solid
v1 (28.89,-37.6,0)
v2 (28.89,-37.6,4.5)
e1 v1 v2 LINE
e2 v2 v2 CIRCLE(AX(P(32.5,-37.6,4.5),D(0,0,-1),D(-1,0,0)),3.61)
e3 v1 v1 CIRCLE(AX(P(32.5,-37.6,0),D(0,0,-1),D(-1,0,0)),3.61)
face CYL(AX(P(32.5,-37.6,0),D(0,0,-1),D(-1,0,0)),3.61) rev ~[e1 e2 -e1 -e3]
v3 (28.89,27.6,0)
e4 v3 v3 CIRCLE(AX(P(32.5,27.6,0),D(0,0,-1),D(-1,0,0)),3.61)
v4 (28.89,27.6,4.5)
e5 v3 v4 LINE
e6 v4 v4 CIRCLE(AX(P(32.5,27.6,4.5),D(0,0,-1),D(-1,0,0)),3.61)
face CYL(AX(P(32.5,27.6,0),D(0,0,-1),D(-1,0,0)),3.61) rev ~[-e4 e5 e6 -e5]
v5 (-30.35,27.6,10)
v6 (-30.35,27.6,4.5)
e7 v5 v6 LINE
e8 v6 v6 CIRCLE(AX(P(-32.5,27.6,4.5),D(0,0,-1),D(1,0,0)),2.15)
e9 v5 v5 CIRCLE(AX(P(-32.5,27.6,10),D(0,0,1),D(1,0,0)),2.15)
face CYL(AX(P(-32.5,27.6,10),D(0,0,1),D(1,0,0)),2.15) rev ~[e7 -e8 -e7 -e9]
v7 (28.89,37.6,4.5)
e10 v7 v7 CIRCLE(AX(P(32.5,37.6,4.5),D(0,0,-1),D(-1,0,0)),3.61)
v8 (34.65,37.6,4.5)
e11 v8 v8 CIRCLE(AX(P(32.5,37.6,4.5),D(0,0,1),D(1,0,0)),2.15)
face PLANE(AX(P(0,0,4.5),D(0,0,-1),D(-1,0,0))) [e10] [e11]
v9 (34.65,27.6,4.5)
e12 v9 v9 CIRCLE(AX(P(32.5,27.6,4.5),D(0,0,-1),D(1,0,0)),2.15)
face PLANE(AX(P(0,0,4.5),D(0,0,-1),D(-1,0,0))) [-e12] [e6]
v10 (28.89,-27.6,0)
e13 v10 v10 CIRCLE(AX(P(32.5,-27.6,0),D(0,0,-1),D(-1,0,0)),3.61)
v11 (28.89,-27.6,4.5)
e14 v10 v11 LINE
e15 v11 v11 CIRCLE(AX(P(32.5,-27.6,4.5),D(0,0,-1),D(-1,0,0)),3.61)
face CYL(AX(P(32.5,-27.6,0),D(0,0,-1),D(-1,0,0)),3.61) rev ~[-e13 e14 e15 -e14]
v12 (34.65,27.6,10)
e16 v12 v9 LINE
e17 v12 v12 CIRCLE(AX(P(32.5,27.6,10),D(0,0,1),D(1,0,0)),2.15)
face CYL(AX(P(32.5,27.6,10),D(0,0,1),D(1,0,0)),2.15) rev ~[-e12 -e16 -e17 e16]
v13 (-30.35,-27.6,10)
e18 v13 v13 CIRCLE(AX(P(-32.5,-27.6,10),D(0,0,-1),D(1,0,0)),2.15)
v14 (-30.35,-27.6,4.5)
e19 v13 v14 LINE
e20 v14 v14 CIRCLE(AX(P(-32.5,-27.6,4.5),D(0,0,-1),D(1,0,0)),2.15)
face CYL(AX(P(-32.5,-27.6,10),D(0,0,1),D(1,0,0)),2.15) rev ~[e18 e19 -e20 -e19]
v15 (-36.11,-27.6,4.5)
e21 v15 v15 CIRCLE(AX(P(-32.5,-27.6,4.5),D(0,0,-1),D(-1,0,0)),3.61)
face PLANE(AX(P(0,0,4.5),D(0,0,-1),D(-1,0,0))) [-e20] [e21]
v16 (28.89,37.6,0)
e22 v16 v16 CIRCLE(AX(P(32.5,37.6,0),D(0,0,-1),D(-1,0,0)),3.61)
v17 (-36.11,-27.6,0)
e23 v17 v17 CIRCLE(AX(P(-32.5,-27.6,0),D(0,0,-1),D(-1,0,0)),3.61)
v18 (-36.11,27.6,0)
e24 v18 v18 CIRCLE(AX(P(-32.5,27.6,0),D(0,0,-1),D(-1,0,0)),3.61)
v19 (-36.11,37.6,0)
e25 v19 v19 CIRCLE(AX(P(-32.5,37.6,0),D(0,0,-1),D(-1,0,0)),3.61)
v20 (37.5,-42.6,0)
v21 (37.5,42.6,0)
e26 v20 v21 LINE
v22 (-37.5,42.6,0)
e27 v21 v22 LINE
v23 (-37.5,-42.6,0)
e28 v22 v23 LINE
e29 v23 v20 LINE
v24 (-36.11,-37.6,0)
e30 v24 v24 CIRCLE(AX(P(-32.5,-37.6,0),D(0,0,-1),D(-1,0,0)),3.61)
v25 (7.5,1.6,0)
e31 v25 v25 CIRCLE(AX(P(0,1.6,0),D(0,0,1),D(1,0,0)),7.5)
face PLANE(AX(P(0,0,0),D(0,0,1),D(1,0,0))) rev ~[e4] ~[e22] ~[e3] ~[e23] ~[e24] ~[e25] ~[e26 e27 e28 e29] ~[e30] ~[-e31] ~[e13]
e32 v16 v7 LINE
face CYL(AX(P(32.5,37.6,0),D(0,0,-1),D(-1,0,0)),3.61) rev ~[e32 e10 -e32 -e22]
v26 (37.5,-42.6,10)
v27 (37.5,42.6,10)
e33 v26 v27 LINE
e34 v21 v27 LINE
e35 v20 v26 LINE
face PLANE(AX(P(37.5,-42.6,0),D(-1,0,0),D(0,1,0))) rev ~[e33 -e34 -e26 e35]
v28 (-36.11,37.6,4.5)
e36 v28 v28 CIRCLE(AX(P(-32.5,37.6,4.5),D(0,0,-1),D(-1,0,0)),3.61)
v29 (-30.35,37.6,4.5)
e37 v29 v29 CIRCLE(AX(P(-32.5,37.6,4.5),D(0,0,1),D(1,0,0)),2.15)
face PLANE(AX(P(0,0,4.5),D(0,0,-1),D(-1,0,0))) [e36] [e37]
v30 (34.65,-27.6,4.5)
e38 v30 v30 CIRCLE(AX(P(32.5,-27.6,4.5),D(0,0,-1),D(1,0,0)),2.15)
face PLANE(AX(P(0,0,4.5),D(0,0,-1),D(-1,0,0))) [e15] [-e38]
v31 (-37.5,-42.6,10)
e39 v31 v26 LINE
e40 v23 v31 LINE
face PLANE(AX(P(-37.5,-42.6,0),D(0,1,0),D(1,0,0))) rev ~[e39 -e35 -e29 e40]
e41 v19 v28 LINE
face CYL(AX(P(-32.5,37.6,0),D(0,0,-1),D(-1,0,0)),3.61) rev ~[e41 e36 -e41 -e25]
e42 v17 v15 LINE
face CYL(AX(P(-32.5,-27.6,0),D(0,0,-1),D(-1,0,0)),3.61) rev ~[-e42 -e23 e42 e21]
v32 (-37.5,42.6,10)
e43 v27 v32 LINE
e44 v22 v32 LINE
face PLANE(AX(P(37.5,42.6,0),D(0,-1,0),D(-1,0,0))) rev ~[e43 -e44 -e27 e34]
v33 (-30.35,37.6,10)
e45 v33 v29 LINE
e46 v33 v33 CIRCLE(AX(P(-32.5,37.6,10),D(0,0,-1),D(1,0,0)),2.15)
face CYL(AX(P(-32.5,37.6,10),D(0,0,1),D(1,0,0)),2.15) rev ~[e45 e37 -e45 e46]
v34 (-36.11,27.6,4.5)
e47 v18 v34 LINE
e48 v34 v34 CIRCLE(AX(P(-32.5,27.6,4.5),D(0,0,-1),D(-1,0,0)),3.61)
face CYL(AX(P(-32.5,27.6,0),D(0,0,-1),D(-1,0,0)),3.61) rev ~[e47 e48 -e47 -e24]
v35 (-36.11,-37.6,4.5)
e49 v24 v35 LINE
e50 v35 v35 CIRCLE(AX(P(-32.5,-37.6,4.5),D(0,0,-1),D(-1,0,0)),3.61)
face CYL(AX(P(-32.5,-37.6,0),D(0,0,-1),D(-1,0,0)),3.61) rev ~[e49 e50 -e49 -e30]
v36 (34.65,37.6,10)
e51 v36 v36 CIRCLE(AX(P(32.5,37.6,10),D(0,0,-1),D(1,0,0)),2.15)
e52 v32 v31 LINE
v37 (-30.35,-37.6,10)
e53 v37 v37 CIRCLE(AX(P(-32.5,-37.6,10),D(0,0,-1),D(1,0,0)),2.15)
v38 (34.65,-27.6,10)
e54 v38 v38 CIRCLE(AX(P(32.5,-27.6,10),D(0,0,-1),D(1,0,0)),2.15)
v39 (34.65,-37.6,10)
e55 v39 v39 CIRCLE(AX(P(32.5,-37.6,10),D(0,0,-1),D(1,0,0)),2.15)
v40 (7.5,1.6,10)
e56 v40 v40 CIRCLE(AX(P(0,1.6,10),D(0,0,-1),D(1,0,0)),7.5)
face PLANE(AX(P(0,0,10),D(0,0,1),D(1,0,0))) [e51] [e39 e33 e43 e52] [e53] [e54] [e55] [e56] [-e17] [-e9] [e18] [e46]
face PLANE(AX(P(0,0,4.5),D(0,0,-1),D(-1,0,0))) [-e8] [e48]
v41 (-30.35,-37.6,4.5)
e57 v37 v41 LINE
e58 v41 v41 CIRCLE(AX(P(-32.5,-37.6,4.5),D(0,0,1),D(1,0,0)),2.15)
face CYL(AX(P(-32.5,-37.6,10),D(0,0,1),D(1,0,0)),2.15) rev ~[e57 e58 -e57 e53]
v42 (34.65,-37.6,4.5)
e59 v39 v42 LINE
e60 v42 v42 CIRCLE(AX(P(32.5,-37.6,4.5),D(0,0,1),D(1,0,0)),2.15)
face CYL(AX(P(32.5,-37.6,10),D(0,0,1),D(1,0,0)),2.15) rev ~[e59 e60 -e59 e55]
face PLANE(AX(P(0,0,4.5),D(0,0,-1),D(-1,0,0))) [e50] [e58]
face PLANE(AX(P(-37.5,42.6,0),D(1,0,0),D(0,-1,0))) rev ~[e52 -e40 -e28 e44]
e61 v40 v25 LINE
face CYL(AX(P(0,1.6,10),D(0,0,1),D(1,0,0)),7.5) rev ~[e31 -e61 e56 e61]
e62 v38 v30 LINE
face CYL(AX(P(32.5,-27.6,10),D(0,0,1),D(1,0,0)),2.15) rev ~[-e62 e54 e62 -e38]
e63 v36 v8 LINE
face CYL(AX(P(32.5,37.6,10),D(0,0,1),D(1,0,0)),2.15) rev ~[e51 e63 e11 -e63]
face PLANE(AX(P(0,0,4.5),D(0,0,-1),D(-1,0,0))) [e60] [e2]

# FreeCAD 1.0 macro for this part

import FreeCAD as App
import Part
import Sketcher


def add_polygon(sketch, points):
    """Adds a closed chain of lines whose ends are joined by coincident constraints."""
    first, n = sketch.GeometryCount, len(points)
    for a, b in zip(points, points[1:] + points[:1]):
        sketch.addGeometry(Part.LineSegment(App.Vector(*a, 0), App.Vector(*b, 0)), False)
    for i in range(n):
        sketch.addConstraint(Sketcher.Constraint("Coincident", first + i, 2, first + (i + 1) % n, 1))

doc = App.newDocument("Part")
body = doc.addObject("PartDesign::Body", "Body")

sketch1 = doc.addObject("Sketcher::SketchObject", "Sketch")
body.addObject(sketch1)
sketch1.AttachmentSupport = (doc.XY_Plane, [""])
sketch1.MapMode = "FlatFace"
add_polygon(sketch1, [(-38, 43), (-38, -43), (38, -43), (38, 43)])
sketch1.addConstraint([
    Sketcher.Constraint("Vertical", 0),
    Sketcher.Constraint("Horizontal", 1),
    Sketcher.Constraint("Vertical", 2),
    Sketcher.Constraint("Horizontal", 3),
    Sketcher.Constraint("Symmetric", 0, 2, 2, 2, -1, 1),
    Sketcher.Constraint("DistanceX", 1, 1, 1, 2, 75.0),
    Sketcher.Constraint("DistanceY", 0, 2, 0, 1, 85.2),
])
pad1 = doc.addObject("PartDesign::Pad", "Pad")
body.addObject(pad1)
pad1.Profile = sketch1
pad1.Length = 10

sketch2 = doc.addObject("Sketcher::SketchObject", "Sketch001")
body.addObject(sketch2)
sketch2.AttachmentSupport = (doc.XY_Plane, [""])
sketch2.MapMode = "FlatFace"
sketch2.AttachmentOffset = App.Placement(App.Vector(0, 0, 10), App.Rotation())
sketch2.addGeometry(Part.Circle(App.Vector(0, 2, 0), App.Vector(0, 0, 1), 8), False)
sketch2.addConstraint([
    Sketcher.Constraint("PointOnObject", 0, 3, -2),
    Sketcher.Constraint("Diameter", 0, 15.0),
    Sketcher.Constraint("DistanceY", -1, 1, 0, 3, 1.6),
])
pocket1 = doc.addObject("PartDesign::Pocket", "Pocket")
body.addObject(pocket1)
pocket1.Profile = sketch2
pocket1.Length = 10

sketch3 = doc.addObject("Sketcher::SketchObject", "Sketch002")
body.addObject(sketch3)
sketch3.AttachmentSupport = (doc.XY_Plane, [""])
sketch3.MapMode = "FlatFace"
sketch3.addGeometry([
    Part.Circle(App.Vector(-32.5, 37.6, 0), App.Vector(0, 0, 1), 3.6),
    Part.Circle(App.Vector(32.5, 37.6, 0), App.Vector(0, 0, 1), 3.6),
    Part.Circle(App.Vector(32.5, 37.6, 0), App.Vector(0, 0, 1), 2),
    Part.Circle(App.Vector(-32.5, -37.6, 0), App.Vector(0, 0, 1), 3.6),
    Part.Circle(App.Vector(32.5, -37.6, 0), App.Vector(0, 0, 1), 3.6),
], False)
sketch3.addConstraint([
    Sketcher.Constraint("Coincident", 2, 3, 1, 3),
    Sketcher.Constraint("Equal", 0, 1),
    Sketcher.Constraint("Equal", 1, 3),
    Sketcher.Constraint("Equal", 3, 4),
    Sketcher.Constraint("Symmetric", 1, 3, 3, 3, -1, 1),
    Sketcher.Constraint("Symmetric", 0, 3, 4, 3, -1, 1),
    Sketcher.Constraint("Symmetric", 0, 3, 1, 3, -2),
    Sketcher.Constraint("Diameter", 0, 7.22),
    Sketcher.Constraint("Diameter", 2, 4.0),
    Sketcher.Constraint("DistanceX", 0, 3, 1, 3, 65.0),
    Sketcher.Constraint("DistanceY", -1, 1, 0, 3, 37.6),
])
pocket2 = doc.addObject("PartDesign::Pocket", "Pocket001")
body.addObject(pocket2)
pocket2.Profile = sketch3
pocket2.Length = 4.5
pocket2.Reversed = True

sketch4 = doc.addObject("Sketcher::SketchObject", "Sketch003")
body.addObject(sketch4)
sketch4.AttachmentSupport = (doc.XY_Plane, [""])
sketch4.MapMode = "FlatFace"
sketch4.AttachmentOffset = App.Placement(App.Vector(0, 0, 10), App.Rotation())
sketch4.addGeometry([
    Part.Circle(App.Vector(32.5, -27.6, 0), App.Vector(0, 0, 1), 2.1),
    Part.Circle(App.Vector(32.5, 37.6, 0), App.Vector(0, 0, 1), 2.1),
    Part.Circle(App.Vector(-32.5, 37.6, 0), App.Vector(0, 0, 1), 2.1),
    Part.Circle(App.Vector(-32.5, -27.6, 0), App.Vector(0, 0, 1), 2.1),
    Part.Circle(App.Vector(32.5, -37.6, 0), App.Vector(0, 0, 1), 2.1),
    Part.Circle(App.Vector(-32.5, -37.6, 0), App.Vector(0, 0, 1), 2.1),
    Part.Circle(App.Vector(32.5, 27.6, 0), App.Vector(0, 0, 1), 2.1),
    Part.Circle(App.Vector(-32.5, 27.6, 0), App.Vector(0, 0, 1), 2.1),
], False)
sketch4.addConstraint([
    Sketcher.Constraint("Equal", 0, 1),
    Sketcher.Constraint("Equal", 1, 2),
    Sketcher.Constraint("Equal", 2, 3),
    Sketcher.Constraint("Equal", 3, 4),
    Sketcher.Constraint("Equal", 4, 5),
    Sketcher.Constraint("Equal", 5, 6),
    Sketcher.Constraint("Equal", 6, 7),
    Sketcher.Constraint("Symmetric", 2, 3, 4, 3, -1, 1),
    Sketcher.Constraint("Symmetric", 1, 3, 5, 3, -1, 1),
    Sketcher.Constraint("Symmetric", 3, 3, 6, 3, -1, 1),
    Sketcher.Constraint("Symmetric", 0, 3, 7, 3, -1, 1),
    Sketcher.Constraint("Symmetric", 1, 3, 2, 3, -2),
    Sketcher.Constraint("Symmetric", 0, 3, 3, 3, -2),
    Sketcher.Constraint("Vertical", 0, 3, 1, 3),
    Sketcher.Constraint("Diameter", 0, 4.3),
    Sketcher.Constraint("DistanceY", 4, 3, 0, 3, 10.0),
    Sketcher.Constraint("DistanceX", 2, 3, 1, 3, 65.0),
    Sketcher.Constraint("DistanceY", 0, 3, -1, 1, 27.6),
])
pocket3 = doc.addObject("PartDesign::Pocket", "Pocket002")
body.addObject(pocket3)
pocket3.Profile = sketch4
pocket3.Length = 10

sketch5 = doc.addObject("Sketcher::SketchObject", "Sketch004")
body.addObject(sketch5)
sketch5.AttachmentSupport = (doc.XY_Plane, [""])
sketch5.MapMode = "FlatFace"
sketch5.addGeometry([
    Part.Circle(App.Vector(32.5, 27.6, 0), App.Vector(0, 0, 1), 3.6),
    Part.Circle(App.Vector(32.5, 27.6, 0), App.Vector(0, 0, 1), 2.1),
    Part.Circle(App.Vector(-32.5, 27.6, 0), App.Vector(0, 0, 1), 3.6),
    Part.Circle(App.Vector(-32.5, 27.6, 0), App.Vector(0, 0, 1), 2.1),
    Part.Circle(App.Vector(32.5, -27.6, 0), App.Vector(0, 0, 1), 3.6),
    Part.Circle(App.Vector(32.5, -27.6, 0), App.Vector(0, 0, 1), 2.1),
    Part.Circle(App.Vector(-32.5, -27.6, 0), App.Vector(0, 0, 1), 3.6),
    Part.Circle(App.Vector(-32.5, -27.6, 0), App.Vector(0, 0, 1), 2.1),
], False)
sketch5.addConstraint([
    Sketcher.Constraint("Coincident", 1, 3, 0, 3),
    Sketcher.Constraint("Coincident", 3, 3, 2, 3),
    Sketcher.Constraint("Coincident", 5, 3, 4, 3),
    Sketcher.Constraint("Coincident", 7, 3, 6, 3),
    Sketcher.Constraint("Equal", 0, 2),
    Sketcher.Constraint("Equal", 1, 3),
    Sketcher.Constraint("Equal", 2, 4),
    Sketcher.Constraint("Equal", 3, 5),
    Sketcher.Constraint("Equal", 4, 6),
    Sketcher.Constraint("Equal", 5, 7),
    Sketcher.Constraint("Symmetric", 2, 3, 4, 3, -1, 1),
    Sketcher.Constraint("Symmetric", 0, 3, 6, 3, -1, 1),
    Sketcher.Constraint("Symmetric", 0, 3, 2, 3, -2),
    Sketcher.Constraint("Diameter", 0, 7.22),
    Sketcher.Constraint("Diameter", 1, 4.3),
    Sketcher.Constraint("DistanceX", 2, 3, 0, 3, 65.0),
    Sketcher.Constraint("DistanceY", -1, 1, 0, 3, 27.6),
])
pocket4 = doc.addObject("PartDesign::Pocket", "Pocket003")
body.addObject(pocket4)
pocket4.Profile = sketch5
pocket4.Length = 4.5
pocket4.Reversed = True

doc.recompute()
